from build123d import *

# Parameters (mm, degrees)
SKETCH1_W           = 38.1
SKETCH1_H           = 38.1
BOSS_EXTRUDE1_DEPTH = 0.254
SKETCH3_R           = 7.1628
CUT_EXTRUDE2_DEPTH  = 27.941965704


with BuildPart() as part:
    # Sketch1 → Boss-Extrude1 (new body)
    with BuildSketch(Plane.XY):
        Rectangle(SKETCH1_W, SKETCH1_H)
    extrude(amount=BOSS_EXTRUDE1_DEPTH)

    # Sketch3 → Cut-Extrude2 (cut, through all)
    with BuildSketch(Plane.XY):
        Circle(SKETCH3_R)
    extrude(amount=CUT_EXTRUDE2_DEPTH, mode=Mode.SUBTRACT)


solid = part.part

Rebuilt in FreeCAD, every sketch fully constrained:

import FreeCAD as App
import Part
import Sketcher
from FreeCAD import Vector
Q = App.Units.Quantity

doc = App.newDocument("Part")
body = doc.addObject("PartDesign::Body", "Body")

sketch1 = body.newObject("Sketcher::SketchObject", "Sketch")
sketch1.AttachmentSupport = (doc.getObject("XY_Plane"), [""])
sketch1.MapMode = "FlatFace"
sketch1.addGeometry([
    Part.LineSegment(Vector(-19, 19, 0), Vector(-19, -19, 0)),
    Part.LineSegment(Vector(-19, -19, 0), Vector(19, -19, 0)),
    Part.LineSegment(Vector(19, -19, 0), Vector(19, 19, 0)),
    Part.LineSegment(Vector(19, 19, 0), Vector(-19, 19, 0)),
], False)
sketch1.addConstraint([
    Sketcher.Constraint("Coincident", 0, 2, 1, 1),
    Sketcher.Constraint("Coincident", 1, 2, 2, 1),
    Sketcher.Constraint("Coincident", 2, 2, 3, 1),
    Sketcher.Constraint("Coincident", 3, 2, 0, 1),
    Sketcher.Constraint("Vertical", 0),
    Sketcher.Constraint("Horizontal", 1),
    Sketcher.Constraint("Vertical", 2),
    Sketcher.Constraint("Horizontal", 3),
    Sketcher.Constraint("Symmetric", 0, 2, 2, 2, -1, 1),
    Sketcher.Constraint("Equal", 3, 0),
    Sketcher.Constraint("DistanceX", 1, 1, 1, 2, Q("1.5 in")),
])
pad1 = body.newObject("PartDesign::Pad", "Pad")
pad1.Profile = sketch1
pad1.Length = Q("0.01 in")

sketch2 = body.newObject("Sketcher::SketchObject", "Sketch001")
sketch2.AttachmentSupport = (doc.getObject("XY_Plane"), [""])
sketch2.MapMode = "FlatFace"
sketch2.addGeometry(Part.Circle(Vector(0, 0, 0), Vector(0, 0, 1), 7), False)
sketch2.addConstraint([
    Sketcher.Constraint("Coincident", 0, 3, -1, 1),
    Sketcher.Constraint("Diameter", 0, Q("0.564 in")),
])
pocket1 = body.newObject("PartDesign::Pocket", "Pocket")
pocket1.Profile = sketch2
pocket1.Type = "ThroughAll"
pocket1.Reversed = True

doc.recompute()
